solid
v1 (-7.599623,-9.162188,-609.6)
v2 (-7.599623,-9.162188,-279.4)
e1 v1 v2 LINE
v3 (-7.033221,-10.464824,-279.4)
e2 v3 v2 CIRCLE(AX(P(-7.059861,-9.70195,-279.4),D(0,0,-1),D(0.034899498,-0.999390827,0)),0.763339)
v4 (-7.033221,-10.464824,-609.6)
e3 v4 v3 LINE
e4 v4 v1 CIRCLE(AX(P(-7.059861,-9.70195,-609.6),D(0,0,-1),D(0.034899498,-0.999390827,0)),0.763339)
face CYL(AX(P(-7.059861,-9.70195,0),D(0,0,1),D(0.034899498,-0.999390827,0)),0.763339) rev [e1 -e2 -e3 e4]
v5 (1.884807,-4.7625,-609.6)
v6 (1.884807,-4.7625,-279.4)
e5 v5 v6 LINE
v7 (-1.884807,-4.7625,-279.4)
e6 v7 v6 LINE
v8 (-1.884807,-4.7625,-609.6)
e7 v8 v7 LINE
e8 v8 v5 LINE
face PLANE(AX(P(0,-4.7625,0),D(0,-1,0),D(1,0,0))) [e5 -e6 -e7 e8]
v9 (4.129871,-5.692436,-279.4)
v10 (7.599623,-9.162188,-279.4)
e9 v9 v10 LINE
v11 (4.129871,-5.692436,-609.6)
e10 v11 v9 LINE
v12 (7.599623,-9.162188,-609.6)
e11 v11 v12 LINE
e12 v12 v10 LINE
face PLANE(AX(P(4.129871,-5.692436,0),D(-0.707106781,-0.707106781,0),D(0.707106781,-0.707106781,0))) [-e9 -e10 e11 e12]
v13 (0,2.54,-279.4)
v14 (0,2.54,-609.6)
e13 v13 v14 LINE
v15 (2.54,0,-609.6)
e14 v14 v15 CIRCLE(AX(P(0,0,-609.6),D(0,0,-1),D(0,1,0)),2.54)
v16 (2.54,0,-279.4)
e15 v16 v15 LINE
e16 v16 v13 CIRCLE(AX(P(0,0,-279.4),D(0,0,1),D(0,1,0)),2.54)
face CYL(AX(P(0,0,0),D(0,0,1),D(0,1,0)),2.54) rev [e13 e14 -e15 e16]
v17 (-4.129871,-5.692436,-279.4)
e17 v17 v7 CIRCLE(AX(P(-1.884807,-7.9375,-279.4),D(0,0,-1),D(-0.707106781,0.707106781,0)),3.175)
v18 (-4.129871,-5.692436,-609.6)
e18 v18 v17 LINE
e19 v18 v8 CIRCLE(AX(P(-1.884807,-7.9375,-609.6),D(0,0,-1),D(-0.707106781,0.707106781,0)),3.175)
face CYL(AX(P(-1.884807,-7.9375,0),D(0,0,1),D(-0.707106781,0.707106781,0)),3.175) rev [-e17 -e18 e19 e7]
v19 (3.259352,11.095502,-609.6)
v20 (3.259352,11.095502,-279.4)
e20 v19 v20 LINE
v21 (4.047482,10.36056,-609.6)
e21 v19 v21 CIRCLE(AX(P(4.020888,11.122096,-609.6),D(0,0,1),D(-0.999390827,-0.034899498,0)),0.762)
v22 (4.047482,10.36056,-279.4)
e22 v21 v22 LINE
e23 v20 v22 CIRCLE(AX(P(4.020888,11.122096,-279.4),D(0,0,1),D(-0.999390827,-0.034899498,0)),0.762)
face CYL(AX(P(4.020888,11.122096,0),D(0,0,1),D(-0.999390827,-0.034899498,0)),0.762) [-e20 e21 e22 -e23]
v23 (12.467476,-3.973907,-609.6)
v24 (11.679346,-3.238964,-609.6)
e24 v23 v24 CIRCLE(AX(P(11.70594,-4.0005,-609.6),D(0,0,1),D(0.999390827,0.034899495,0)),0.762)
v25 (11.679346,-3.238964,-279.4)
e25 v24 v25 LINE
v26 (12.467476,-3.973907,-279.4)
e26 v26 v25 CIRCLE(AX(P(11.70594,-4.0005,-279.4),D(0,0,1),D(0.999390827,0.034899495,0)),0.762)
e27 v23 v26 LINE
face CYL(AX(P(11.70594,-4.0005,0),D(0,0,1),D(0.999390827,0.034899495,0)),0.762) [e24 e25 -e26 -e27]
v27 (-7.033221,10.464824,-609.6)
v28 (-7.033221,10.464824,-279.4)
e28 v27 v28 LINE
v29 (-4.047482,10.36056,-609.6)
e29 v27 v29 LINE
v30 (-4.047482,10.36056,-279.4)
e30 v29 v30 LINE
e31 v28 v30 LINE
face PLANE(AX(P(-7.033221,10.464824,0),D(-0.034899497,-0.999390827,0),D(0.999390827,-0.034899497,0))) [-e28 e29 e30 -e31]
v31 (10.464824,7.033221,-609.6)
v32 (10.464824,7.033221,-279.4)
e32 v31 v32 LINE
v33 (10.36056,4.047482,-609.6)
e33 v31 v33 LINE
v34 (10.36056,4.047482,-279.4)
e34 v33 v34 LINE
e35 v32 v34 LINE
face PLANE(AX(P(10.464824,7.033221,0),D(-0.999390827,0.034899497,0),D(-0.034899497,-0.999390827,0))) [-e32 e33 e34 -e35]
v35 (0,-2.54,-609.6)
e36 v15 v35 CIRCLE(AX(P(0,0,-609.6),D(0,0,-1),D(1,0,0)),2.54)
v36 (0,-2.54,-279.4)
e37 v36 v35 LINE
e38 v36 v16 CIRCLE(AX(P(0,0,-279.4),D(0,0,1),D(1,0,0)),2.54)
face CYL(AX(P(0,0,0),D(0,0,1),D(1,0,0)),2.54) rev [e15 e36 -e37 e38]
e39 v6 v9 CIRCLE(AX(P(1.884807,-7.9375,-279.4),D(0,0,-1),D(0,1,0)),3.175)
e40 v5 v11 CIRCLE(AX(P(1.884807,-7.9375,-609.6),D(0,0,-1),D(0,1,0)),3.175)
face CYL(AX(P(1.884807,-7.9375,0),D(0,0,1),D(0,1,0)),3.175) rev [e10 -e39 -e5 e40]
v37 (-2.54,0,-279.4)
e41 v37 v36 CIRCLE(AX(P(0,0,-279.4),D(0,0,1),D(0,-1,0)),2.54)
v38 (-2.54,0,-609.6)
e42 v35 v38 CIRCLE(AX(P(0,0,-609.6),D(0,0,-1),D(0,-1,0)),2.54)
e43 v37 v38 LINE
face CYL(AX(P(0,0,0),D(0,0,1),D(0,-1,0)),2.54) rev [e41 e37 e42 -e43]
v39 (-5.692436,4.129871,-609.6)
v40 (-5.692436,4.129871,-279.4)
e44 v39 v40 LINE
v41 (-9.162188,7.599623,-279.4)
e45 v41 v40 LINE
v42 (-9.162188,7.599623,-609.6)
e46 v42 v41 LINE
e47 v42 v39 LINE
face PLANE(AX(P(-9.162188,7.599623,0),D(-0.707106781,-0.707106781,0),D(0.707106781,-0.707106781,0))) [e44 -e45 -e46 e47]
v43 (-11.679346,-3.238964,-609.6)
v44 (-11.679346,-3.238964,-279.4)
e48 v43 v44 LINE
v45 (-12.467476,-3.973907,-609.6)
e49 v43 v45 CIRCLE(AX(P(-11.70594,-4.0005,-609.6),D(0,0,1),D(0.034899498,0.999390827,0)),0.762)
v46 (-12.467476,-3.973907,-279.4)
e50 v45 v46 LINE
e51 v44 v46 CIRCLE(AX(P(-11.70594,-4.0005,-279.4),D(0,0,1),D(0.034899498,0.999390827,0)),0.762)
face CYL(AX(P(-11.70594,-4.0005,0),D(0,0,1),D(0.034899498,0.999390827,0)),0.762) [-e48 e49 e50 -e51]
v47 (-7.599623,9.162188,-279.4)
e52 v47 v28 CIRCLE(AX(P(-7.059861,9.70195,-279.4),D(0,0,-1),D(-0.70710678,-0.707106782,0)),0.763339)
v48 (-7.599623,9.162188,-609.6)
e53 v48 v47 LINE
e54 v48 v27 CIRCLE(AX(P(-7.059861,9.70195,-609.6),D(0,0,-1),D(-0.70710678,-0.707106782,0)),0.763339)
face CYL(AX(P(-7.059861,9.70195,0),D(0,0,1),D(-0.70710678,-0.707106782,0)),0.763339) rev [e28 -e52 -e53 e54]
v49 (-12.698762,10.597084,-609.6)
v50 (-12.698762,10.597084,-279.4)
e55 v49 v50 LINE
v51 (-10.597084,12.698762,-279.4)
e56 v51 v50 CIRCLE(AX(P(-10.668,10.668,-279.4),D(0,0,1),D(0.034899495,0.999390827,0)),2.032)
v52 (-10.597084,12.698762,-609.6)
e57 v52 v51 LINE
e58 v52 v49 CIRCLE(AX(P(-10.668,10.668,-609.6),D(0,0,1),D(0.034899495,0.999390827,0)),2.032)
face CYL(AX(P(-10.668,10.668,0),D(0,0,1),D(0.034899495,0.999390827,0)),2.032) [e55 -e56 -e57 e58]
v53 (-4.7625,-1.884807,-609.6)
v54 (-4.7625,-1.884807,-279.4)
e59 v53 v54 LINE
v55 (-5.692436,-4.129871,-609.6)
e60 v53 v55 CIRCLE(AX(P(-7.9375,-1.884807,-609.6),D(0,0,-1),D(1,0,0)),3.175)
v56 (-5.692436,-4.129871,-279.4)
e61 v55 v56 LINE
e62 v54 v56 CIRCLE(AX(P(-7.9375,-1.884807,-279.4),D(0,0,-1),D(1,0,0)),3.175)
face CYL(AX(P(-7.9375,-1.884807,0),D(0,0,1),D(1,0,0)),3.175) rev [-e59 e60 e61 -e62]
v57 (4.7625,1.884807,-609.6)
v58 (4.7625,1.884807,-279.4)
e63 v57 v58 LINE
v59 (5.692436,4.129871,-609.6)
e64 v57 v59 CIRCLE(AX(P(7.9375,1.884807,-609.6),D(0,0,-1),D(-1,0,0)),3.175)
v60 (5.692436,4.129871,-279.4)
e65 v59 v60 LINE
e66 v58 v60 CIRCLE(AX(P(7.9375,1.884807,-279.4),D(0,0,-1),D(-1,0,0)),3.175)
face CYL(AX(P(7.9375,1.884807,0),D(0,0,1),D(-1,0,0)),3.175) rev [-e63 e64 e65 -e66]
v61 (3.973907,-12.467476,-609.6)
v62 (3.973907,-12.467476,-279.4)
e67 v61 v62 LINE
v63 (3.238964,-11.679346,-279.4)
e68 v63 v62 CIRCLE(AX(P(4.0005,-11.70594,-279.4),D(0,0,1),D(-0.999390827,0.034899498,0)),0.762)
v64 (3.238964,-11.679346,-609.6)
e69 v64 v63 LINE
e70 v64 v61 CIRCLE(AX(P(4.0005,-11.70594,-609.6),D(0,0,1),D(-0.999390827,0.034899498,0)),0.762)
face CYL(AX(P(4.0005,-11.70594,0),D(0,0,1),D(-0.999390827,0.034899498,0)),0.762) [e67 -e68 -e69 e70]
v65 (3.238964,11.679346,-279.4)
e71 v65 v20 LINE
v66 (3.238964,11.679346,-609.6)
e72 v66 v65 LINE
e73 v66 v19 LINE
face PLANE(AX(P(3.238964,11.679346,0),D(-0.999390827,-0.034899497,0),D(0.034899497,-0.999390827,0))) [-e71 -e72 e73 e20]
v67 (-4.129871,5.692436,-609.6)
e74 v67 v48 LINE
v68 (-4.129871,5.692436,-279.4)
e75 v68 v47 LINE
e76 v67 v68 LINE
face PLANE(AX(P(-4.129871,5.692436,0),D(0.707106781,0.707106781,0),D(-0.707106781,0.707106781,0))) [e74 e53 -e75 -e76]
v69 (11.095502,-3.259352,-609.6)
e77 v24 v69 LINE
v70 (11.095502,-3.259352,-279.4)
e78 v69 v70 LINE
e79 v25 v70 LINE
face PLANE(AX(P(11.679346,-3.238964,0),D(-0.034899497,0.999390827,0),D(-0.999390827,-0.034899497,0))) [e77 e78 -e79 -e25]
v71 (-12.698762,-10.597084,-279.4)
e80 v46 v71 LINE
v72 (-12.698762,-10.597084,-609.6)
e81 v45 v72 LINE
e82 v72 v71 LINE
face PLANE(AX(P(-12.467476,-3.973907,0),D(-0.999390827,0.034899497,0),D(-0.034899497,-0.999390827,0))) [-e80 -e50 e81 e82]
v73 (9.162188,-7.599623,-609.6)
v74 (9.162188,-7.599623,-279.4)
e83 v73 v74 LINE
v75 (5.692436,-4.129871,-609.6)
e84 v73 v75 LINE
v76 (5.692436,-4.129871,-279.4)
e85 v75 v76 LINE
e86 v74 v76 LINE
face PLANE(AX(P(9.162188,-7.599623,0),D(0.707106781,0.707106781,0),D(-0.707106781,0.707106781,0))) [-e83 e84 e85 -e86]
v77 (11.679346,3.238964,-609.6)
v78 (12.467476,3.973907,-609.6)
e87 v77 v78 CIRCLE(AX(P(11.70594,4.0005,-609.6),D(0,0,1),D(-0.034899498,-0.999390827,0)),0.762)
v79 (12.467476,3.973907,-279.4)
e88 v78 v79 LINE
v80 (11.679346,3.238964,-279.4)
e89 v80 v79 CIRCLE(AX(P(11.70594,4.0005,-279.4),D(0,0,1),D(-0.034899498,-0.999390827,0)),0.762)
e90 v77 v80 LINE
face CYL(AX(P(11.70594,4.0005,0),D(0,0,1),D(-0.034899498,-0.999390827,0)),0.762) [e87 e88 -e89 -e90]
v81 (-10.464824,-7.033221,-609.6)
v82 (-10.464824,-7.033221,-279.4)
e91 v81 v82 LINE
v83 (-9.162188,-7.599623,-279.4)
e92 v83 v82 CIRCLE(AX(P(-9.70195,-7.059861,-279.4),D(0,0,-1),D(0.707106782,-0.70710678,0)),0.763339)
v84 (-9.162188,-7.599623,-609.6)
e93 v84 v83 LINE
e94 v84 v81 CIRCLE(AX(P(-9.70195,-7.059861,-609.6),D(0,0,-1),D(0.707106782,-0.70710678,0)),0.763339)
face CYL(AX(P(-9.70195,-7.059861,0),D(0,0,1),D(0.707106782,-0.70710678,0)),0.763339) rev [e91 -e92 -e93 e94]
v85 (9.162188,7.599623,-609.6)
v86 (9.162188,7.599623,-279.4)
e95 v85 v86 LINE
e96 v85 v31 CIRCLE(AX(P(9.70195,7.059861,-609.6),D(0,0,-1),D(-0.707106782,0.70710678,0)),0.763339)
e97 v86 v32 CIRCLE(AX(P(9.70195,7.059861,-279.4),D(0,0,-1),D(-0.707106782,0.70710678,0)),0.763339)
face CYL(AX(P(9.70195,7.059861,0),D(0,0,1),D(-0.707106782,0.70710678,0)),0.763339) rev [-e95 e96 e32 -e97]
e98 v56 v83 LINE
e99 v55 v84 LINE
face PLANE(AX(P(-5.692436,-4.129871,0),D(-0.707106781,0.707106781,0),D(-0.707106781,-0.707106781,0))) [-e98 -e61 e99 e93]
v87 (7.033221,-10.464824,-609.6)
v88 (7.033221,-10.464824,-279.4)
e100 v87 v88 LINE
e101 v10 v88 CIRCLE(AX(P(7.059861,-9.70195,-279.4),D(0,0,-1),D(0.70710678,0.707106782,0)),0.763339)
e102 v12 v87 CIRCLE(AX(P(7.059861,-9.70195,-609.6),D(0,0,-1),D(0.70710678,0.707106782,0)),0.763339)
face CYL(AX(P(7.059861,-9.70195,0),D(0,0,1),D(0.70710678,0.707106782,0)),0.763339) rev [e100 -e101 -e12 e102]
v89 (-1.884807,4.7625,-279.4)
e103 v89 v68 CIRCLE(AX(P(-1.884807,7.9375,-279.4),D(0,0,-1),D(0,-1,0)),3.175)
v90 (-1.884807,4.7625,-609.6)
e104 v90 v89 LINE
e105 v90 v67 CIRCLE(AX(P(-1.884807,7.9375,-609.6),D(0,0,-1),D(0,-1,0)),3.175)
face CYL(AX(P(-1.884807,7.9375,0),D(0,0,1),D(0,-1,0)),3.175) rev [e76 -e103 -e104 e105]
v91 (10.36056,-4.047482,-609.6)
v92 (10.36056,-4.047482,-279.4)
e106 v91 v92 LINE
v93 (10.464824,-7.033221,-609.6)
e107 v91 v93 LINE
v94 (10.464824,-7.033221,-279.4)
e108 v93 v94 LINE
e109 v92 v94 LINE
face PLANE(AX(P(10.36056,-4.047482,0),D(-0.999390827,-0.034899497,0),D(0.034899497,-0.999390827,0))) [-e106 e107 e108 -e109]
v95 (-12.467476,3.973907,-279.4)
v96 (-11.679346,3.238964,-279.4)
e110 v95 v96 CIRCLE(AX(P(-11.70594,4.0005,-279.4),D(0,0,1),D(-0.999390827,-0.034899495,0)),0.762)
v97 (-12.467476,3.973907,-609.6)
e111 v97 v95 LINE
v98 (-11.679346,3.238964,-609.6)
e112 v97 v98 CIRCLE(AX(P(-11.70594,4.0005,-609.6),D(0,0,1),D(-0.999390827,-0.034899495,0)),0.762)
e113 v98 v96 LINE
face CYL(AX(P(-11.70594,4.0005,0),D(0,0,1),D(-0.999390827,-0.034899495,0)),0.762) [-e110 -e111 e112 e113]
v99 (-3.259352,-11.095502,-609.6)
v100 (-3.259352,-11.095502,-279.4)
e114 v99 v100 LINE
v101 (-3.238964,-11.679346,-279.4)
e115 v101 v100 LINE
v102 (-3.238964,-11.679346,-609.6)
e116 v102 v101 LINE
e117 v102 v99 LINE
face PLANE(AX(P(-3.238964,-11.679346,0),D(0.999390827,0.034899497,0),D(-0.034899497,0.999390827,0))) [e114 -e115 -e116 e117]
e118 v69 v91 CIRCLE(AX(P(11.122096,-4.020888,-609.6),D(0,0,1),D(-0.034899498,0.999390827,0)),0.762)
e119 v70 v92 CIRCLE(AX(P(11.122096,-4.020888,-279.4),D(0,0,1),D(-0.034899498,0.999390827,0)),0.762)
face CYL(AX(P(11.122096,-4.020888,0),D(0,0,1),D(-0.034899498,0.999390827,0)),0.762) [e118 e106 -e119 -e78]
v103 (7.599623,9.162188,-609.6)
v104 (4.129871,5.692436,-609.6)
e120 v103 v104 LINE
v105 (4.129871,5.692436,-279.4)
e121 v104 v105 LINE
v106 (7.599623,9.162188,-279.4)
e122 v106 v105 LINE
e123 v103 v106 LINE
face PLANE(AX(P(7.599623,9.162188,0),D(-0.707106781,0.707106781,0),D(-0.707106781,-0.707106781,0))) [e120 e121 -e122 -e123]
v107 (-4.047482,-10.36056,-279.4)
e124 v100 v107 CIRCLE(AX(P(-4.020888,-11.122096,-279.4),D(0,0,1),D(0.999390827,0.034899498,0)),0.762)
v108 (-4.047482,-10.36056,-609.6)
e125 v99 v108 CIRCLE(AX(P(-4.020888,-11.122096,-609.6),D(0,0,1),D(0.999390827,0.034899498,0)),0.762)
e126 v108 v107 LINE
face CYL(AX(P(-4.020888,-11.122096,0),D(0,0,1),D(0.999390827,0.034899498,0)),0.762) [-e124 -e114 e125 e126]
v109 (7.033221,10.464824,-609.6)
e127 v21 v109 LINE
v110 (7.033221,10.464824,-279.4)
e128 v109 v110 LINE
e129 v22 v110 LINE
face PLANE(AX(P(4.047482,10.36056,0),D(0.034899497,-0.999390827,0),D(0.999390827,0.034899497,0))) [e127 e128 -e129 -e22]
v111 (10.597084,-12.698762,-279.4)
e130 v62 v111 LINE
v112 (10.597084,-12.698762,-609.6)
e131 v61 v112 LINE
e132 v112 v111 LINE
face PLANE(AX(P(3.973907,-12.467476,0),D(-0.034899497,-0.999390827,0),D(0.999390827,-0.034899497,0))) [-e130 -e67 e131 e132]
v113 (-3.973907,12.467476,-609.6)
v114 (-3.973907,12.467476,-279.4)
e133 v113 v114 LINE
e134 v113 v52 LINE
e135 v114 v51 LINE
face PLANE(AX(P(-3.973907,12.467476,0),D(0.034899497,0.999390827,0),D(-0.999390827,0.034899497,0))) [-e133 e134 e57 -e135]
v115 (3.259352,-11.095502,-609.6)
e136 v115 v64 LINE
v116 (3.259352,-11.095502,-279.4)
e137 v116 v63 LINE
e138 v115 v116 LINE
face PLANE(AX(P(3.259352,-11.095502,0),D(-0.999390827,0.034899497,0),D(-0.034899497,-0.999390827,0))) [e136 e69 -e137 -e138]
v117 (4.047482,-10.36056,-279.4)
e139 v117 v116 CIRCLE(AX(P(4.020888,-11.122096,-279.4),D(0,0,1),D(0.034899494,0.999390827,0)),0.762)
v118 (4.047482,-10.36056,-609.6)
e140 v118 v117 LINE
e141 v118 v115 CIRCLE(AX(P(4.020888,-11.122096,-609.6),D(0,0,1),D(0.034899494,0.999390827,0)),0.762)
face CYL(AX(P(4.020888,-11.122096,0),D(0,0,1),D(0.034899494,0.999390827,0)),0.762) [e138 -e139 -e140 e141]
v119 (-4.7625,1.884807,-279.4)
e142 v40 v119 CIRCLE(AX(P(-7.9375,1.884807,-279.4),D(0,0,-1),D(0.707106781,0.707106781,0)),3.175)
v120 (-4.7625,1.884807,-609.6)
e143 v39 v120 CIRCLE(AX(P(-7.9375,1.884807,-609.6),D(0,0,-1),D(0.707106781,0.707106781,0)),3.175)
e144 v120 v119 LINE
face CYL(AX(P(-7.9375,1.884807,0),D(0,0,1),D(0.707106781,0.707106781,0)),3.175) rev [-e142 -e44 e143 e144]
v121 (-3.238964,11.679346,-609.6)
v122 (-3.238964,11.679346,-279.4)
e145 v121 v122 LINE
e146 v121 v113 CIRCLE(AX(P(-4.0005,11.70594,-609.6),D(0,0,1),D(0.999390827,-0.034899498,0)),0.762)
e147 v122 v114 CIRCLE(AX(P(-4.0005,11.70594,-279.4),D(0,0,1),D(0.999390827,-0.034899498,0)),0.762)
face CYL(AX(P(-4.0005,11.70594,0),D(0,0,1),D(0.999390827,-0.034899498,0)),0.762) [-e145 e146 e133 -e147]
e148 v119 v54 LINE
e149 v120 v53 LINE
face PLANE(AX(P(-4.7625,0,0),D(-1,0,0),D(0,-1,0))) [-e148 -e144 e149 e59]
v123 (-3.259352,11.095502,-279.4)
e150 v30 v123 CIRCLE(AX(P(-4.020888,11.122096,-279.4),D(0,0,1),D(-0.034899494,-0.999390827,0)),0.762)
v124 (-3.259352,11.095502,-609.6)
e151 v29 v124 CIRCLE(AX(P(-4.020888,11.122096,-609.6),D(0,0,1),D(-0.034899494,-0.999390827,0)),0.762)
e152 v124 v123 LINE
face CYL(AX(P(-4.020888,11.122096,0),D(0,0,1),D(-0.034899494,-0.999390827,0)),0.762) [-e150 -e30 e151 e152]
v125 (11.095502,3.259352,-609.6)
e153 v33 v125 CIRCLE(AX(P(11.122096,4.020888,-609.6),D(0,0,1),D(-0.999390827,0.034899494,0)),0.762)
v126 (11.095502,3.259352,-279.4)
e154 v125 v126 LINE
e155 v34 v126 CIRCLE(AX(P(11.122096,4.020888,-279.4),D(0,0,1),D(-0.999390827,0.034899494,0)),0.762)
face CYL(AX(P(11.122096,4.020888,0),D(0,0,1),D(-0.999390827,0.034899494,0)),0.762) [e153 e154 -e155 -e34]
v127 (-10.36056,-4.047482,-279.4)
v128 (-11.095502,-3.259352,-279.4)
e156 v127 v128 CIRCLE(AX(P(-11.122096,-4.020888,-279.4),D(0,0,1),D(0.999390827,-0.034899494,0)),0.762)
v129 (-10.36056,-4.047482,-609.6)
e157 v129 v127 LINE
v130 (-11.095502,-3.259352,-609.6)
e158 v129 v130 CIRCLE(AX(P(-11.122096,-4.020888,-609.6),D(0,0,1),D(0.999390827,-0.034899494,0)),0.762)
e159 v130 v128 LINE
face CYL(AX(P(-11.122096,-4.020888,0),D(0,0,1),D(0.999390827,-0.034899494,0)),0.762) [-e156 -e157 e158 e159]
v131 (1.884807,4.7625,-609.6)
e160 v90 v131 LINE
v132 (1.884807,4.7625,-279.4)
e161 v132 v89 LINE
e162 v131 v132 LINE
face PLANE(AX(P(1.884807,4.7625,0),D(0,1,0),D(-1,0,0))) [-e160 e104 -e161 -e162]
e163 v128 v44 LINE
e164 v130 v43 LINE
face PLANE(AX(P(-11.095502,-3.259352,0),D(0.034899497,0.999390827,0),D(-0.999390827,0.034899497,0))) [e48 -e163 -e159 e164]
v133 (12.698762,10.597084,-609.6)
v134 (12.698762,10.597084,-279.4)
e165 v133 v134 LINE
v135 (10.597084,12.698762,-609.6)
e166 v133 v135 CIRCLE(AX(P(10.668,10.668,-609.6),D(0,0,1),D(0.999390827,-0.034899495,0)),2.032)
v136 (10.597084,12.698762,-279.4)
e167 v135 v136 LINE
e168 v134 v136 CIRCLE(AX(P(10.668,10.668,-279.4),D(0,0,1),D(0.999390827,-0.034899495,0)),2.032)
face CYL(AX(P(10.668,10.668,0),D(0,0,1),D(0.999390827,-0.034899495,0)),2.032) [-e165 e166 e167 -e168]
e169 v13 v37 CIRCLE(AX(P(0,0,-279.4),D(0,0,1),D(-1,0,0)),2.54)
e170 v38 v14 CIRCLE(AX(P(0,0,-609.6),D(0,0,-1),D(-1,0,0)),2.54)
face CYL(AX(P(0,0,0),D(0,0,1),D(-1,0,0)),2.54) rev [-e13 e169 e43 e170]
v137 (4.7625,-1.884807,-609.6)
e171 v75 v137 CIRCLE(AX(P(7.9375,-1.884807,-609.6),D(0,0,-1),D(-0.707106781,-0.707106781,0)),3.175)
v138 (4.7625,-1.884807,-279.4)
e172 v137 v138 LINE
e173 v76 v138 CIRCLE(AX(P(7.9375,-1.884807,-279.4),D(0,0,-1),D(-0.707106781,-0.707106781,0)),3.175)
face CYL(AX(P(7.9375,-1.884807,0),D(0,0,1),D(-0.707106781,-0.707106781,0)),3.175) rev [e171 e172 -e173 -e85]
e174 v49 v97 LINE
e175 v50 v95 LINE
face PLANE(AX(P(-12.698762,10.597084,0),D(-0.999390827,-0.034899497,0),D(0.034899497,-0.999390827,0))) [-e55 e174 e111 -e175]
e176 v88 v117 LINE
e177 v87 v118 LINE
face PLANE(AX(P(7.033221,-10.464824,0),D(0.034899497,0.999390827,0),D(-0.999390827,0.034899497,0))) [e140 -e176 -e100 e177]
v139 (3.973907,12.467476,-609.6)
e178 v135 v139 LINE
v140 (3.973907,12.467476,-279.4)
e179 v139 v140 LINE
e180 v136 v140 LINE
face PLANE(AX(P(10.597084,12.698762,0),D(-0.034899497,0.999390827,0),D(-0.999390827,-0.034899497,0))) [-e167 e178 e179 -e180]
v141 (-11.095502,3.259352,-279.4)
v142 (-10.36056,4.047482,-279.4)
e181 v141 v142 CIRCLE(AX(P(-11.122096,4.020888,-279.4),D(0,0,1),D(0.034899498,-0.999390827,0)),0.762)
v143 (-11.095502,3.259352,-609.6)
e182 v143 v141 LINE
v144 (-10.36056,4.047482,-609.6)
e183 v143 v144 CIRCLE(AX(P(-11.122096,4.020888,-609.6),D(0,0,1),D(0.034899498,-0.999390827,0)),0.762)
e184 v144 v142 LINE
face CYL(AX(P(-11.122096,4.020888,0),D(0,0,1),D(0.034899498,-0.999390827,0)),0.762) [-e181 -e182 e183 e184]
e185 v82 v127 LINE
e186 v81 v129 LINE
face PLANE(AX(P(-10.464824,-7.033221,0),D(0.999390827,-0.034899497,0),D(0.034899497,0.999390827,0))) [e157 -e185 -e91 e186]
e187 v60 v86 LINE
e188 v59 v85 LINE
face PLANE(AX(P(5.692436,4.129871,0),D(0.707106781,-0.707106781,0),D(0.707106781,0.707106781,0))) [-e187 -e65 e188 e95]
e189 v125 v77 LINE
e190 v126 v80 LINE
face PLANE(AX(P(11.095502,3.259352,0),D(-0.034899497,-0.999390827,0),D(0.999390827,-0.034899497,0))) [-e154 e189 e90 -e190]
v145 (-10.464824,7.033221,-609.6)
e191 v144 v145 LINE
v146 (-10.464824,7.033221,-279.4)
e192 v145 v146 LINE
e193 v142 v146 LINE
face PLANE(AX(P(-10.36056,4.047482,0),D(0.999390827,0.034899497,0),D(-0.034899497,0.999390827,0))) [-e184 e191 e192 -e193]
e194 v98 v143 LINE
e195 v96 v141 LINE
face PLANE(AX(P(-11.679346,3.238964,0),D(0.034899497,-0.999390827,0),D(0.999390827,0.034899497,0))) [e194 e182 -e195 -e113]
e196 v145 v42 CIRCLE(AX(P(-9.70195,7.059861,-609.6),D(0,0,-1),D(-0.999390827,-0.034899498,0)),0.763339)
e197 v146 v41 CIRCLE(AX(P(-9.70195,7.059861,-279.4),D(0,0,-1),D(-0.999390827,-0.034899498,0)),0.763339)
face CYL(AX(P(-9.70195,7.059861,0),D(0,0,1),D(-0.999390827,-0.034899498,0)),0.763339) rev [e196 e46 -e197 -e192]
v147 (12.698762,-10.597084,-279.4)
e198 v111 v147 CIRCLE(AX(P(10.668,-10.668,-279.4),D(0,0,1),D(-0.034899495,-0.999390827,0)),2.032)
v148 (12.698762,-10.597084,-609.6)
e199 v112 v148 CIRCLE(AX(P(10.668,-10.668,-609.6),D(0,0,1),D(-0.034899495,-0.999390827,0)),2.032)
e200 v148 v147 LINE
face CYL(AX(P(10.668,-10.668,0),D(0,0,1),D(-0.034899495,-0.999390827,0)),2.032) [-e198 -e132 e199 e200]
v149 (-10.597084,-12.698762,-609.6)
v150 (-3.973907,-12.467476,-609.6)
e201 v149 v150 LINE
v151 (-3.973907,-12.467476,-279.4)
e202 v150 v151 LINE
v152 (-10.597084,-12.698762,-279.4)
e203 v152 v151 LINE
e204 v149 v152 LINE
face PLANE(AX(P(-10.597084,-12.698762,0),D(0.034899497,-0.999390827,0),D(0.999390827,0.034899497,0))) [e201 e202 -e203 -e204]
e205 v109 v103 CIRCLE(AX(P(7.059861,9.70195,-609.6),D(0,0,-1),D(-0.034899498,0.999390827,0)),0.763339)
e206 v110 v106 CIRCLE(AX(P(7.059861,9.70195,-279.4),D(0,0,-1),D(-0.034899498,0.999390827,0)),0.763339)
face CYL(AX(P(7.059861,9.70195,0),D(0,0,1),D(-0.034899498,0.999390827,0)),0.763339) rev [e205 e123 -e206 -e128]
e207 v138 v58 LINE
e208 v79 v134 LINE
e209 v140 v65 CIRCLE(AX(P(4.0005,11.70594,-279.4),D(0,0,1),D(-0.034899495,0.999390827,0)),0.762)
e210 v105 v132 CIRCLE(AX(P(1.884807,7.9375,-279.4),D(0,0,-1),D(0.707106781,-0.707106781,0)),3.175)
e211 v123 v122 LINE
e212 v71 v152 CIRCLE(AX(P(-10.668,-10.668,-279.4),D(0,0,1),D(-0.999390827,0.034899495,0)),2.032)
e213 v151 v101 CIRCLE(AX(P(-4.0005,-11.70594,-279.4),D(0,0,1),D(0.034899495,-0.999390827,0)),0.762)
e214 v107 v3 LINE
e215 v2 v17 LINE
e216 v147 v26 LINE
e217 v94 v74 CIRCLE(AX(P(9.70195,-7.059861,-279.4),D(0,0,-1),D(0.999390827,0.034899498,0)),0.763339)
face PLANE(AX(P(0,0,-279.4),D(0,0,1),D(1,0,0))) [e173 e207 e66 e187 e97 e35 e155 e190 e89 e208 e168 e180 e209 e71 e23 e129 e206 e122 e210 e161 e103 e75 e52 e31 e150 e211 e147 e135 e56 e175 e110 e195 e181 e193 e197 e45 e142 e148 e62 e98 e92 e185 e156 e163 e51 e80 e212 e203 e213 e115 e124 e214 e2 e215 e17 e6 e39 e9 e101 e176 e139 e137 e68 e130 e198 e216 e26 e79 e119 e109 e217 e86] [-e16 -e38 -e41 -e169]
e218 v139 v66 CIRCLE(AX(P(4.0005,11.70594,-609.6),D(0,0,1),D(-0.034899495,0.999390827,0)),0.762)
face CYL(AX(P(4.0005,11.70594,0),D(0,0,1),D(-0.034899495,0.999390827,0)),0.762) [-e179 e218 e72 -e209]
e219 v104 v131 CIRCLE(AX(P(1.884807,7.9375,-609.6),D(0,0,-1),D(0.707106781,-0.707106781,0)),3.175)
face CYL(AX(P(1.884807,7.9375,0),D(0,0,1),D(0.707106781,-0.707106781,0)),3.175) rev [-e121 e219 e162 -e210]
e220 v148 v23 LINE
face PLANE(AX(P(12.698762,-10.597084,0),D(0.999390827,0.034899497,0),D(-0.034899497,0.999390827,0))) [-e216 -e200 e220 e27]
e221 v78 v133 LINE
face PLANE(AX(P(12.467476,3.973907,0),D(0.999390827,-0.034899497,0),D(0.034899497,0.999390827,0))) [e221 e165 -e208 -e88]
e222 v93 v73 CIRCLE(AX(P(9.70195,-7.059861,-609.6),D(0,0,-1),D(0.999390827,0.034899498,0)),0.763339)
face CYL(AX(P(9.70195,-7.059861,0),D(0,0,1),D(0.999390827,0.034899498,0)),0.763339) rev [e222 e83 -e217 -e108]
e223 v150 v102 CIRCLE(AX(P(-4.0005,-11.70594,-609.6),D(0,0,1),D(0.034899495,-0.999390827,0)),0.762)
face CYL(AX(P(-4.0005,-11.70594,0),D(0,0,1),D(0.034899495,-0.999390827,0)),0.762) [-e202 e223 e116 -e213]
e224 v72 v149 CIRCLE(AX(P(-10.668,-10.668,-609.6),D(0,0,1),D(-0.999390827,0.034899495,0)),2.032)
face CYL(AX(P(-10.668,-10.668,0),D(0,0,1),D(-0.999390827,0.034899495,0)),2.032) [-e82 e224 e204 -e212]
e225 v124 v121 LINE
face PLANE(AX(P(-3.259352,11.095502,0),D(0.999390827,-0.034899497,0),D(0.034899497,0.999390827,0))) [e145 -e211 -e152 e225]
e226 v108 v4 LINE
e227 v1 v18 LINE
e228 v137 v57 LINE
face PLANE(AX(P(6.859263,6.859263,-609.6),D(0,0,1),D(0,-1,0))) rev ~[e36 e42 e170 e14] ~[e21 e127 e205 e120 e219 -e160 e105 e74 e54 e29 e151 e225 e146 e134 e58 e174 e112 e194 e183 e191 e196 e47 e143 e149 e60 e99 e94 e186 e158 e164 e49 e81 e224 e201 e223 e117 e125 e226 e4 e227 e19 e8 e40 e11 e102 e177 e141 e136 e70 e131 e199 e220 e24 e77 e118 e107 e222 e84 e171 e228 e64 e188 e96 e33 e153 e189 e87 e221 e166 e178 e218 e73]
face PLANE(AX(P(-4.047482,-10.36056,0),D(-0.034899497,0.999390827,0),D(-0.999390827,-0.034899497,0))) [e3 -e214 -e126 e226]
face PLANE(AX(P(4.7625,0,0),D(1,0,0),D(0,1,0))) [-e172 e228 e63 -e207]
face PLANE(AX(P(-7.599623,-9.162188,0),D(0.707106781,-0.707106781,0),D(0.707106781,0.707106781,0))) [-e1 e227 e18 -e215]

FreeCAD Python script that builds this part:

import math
import FreeCAD as App
import Part
import Sketcher
from FreeCAD import Vector
Q = App.Units.Quantity

doc = App.newDocument("Part")
params = doc.addObject("Spreadsheet::Sheet", "Params")
for row, (alias, value) in enumerate([
    ("sketch1_radius", "0.1 in"),
    ("sketch1_radius2", "0.03 in"),
    ("sketch1_radius3", "0.08 in"),
    ("sketch1_radius4", "0.125 in"),
    ("sketch1_length", "0.023 in"),
    ("pad1_length", "48 in"),
    ("sketch2_radius", "0.03 in"),
    ("sketch2_radius2", "0.08 in"),
    ("sketch2_radius3", "0.125 in"),
    ("sketch2_length", "0.023 in"),
    ("pocket1_length", "35 in"),
], start=1):
    params.set(f"A{row}", alias)
    params.set(f"B{row}", "=" + value)
    params.setAlias(f"B{row}", alias)

body = doc.addObject("PartDesign::Body", "Body")

# Sketch on XY plane
sketch1 = body.newObject("Sketcher::SketchObject", "Sketch")
sketch1.AttachmentSupport = (doc.getObject("XY_Plane"), [""])
sketch1.MapMode = "FlatFace"
sketch1.addGeometry([
    Part.LineSegment(Vector(0, 4.8, 0), Vector(-1.9, 4.8, 0)),  # 0
    Part.ArcOfCircle(Part.Circle(Vector(-1.9, 7.9, 0), Vector(0, 0, 1), 3.2), math.radians(-135), math.radians(-90)),  # 1
    Part.LineSegment(Vector(-4.1, 5.7, 0), Vector(-7.6, 9.2, 0)),  # 2
    Part.ArcOfCircle(Part.Circle(Vector(-7.1, 9.7, 0), Vector(0, 0, 1), 0.8), math.radians(88), math.radians(225)),  # 3
    Part.LineSegment(Vector(-7, 10.5, 0), Vector(-4, 10.4, 0)),  # 4
    Part.ArcOfCircle(Part.Circle(Vector(-4, 11.1, 0), Vector(0, 0, 1), 0.8), math.radians(-92), math.radians(-2)),  # 5
    Part.LineSegment(Vector(-3.3, 11.1, 0), Vector(-3.2, 11.7, 0)),  # 6
    Part.ArcOfCircle(Part.Circle(Vector(-4, 11.7, 0), Vector(0, 0, 1), 0.8), math.radians(-2), math.radians(88)),  # 7
    Part.LineSegment(Vector(-4, 12.5, 0), Vector(-10.6, 12.7, 0)),  # 8
    Part.ArcOfCircle(Part.Circle(Vector(-10.7, 10.7, 0), Vector(0, 0, 1), 2), math.radians(88), math.radians(182)),  # 9
    Part.LineSegment(Vector(-12.7, 10.6, 0), Vector(-12.5, 4, 0)),  # 10
    Part.ArcOfCircle(Part.Circle(Vector(-11.7, 4, 0), Vector(0, 0, 1), 0.8), math.radians(-178), math.radians(-88)),  # 11
    Part.LineSegment(Vector(-11.7, 3.2, 0), Vector(-11.1, 3.3, 0)),  # 12
    Part.ArcOfCircle(Part.Circle(Vector(-11.1, 4, 0), Vector(0, 0, 1), 0.8), math.radians(-88), math.radians(2)),  # 13
    Part.LineSegment(Vector(-10.4, 4, 0), Vector(-10.5, 7, 0)),  # 14
    Part.ArcOfCircle(Part.Circle(Vector(-9.7, 7.1, 0), Vector(0, 0, 1), 0.8), math.radians(45), math.radians(182)),  # 15
    Part.LineSegment(Vector(-9.2, 7.6, 0), Vector(-5.7, 4.1, 0)),  # 16
    Part.ArcOfCircle(Part.Circle(Vector(-7.9, 1.9, 0), Vector(0, 0, 1), 3.2), math.radians(0), math.radians(45)),  # 17
    Part.LineSegment(Vector(-4.8, 1.9, 0), Vector(-4.8, 0, 0)),  # 18
    Part.LineSegment(Vector(-4.8, 0, 0), Vector(-2.5, 0, 0)),  # 19
    Part.ArcOfCircle(Part.Circle(Vector(0, 0, 0), Vector(0, 0, 1), 2.5), math.radians(90), math.radians(180)),  # 20
    Part.LineSegment(Vector(0, 2.5, 0), Vector(0, 4.8, 0)),  # 21
], False)
sketch1.addConstraint([
    Sketcher.Constraint("Tangent", 0, 2, 1, 2),
    Sketcher.Constraint("Tangent", 1, 1, 2, 1),
    Sketcher.Constraint("Tangent", 2, 2, 3, 2),
    Sketcher.Constraint("Tangent", 3, 1, 4, 1),
    Sketcher.Constraint("Tangent", 4, 2, 5, 1),
    Sketcher.Constraint("Tangent", 5, 2, 6, 1),
    Sketcher.Constraint("Tangent", 6, 2, 7, 1),
    Sketcher.Constraint("Tangent", 7, 2, 8, 1),
    Sketcher.Constraint("Tangent", 8, 2, 9, 1),
    Sketcher.Constraint("Tangent", 9, 2, 10, 1),
    Sketcher.Constraint("Tangent", 10, 2, 11, 1),
    Sketcher.Constraint("Tangent", 11, 2, 12, 1),
    Sketcher.Constraint("Tangent", 12, 2, 13, 1),
    Sketcher.Constraint("Tangent", 13, 2, 14, 1),
    Sketcher.Constraint("Tangent", 14, 2, 15, 2),
    Sketcher.Constraint("Tangent", 15, 1, 16, 1),
    Sketcher.Constraint("Tangent", 16, 2, 17, 2),
    Sketcher.Constraint("Tangent", 17, 1, 18, 1),
    Sketcher.Constraint("Coincident", 18, 2, 19, 1),
    Sketcher.Constraint("Coincident", 19, 2, 20, 2),
    Sketcher.Constraint("Coincident", 20, 1, 21, 1),
    Sketcher.Constraint("Coincident", 21, 2, 0, 1),
    Sketcher.Constraint("Horizontal", 0),
    Sketcher.Constraint("Vertical", 18),
    Sketcher.Constraint("Horizontal", 19),
    Sketcher.Constraint("Vertical", 21),
    Sketcher.Constraint("Coincident", 20, 3, -1, 1),
    Sketcher.Constraint("Equal", 5, 7),
    Sketcher.Constraint("Equal", 7, 11),
    Sketcher.Constraint("Equal", 11, 13),
    Sketcher.Constraint("Equal", 3, 15),
    Sketcher.Constraint("Equal", 1, 17),
    Sketcher.Constraint("PointOnObject", 18, 2, -1),
    Sketcher.Constraint("PointOnObject", 20, 1, -2),
    Sketcher.Constraint("Perpendicular", 4, 6),
    Sketcher.Constraint("Perpendicular", 6, 8),
    Sketcher.Constraint("Perpendicular", 10, 12),
    Sketcher.Constraint("Perpendicular", 12, 14),
    Sketcher.Constraint("Parallel", 2, 16),
    Sketcher.Constraint("Equal", 0, 18),
    Sketcher.Constraint("Equal", 19, 21),
    Sketcher.Constraint("Equal", 8, 10),
    Sketcher.Constraint("Equal", 6, 12),
    Sketcher.Constraint("Equal", 4, 14),
    Sketcher.Constraint("Equal", 2, 16),
    Sketcher.Constraint("Radius", 20, Q("0.1 in")),
    Sketcher.Constraint("Radius", 5, Q("0.03 in")),
    Sketcher.Constraint("Radius", 9, Q("0.08 in")),
    Sketcher.Constraint("Angle", 2, Q("135 deg")),
    Sketcher.Constraint("Angle", 4, Q("-2 deg")),
    Sketcher.Constraint("Radius", 1, Q("0.125 in")),
    Sketcher.Constraint("DistanceX", 9, 3, -1, 1, Q("0.42 in")),
    Sketcher.Constraint("Distance", 6, Q("0.023 in")),
    Sketcher.Constraint("DistanceX", 19, 1, 19, 2, Q("0.0875 in")),
    Sketcher.Constraint("Radius", 3, 0.763339),
    Sketcher.Constraint("DistanceY", 11, 3, 1, 3, Q("0.155 in")),
    Sketcher.Constraint("DistanceY", 15, 3, 8, 2, 5.638901),
])
sketch1.setExpression("Constraints[45]", "Params.sketch1_radius")
sketch1.setExpression("Constraints[46]", "Params.sketch1_radius2")
sketch1.setExpression("Constraints[47]", "Params.sketch1_radius3")
sketch1.setExpression("Constraints[50]", "Params.sketch1_radius4")
sketch1.setExpression("Constraints[52]", "Params.sketch1_length")
pad1 = body.newObject("PartDesign::Pad", "Pad")
pad1.Profile = sketch1
pad1.setExpression("Length", "Params.pad1_length")
pad1.Midplane = True
doc.recompute()

polarpattern = body.newObject("PartDesign::PolarPattern", "PolarPattern")
polarpattern.Originals = [pad1]
polarpattern.Axis = (doc.getObject("Z_Axis"), [""])
polarpattern.Angle = 360
polarpattern.Occurrences = 4
body.Tip = polarpattern

# Sketch on XY plane
sketch2 = body.newObject("Sketcher::SketchObject", "Sketch001")
sketch2.AttachmentSupport = (doc.getObject("XY_Plane"), [""])
sketch2.MapMode = "FlatFace"
sketch2.AttachmentOffset = App.Placement(Vector(0, 0, 24 * 25.4), App.Rotation())
sketch2.addGeometry([
    Part.LineSegment(Vector(1.9, 4.8, 0), Vector(-1.9, 4.8, 0)),  # 0
    Part.ArcOfCircle(Part.Circle(Vector(-1.9, 7.9, 0), Vector(0, 0, 1), 3.2), math.radians(-135), math.radians(-90)),  # 1
    Part.LineSegment(Vector(-4.1, 5.7, 0), Vector(-7.6, 9.2, 0)),  # 2
    Part.ArcOfCircle(Part.Circle(Vector(-7.1, 9.7, 0), Vector(0, 0, 1), 0.8), math.radians(88), math.radians(225)),  # 3
    Part.LineSegment(Vector(-7, 10.5, 0), Vector(-4, 10.4, 0)),  # 4
    Part.ArcOfCircle(Part.Circle(Vector(-4, 11.1, 0), Vector(0, 0, 1), 0.8), math.radians(-92), math.radians(-2)),  # 5
    Part.LineSegment(Vector(-3.3, 11.1, 0), Vector(-3.2, 11.7, 0)),  # 6
    Part.ArcOfCircle(Part.Circle(Vector(-4, 11.7, 0), Vector(0, 0, 1), 0.8), math.radians(-2), math.radians(88)),  # 7
    Part.LineSegment(Vector(-4, 12.5, 0), Vector(-10.6, 12.7, 0)),  # 8
    Part.ArcOfCircle(Part.Circle(Vector(-10.7, 10.7, 0), Vector(0, 0, 1), 2), math.radians(88), math.radians(182)),  # 9
    Part.LineSegment(Vector(-12.7, 10.6, 0), Vector(-12.5, 4, 0)),  # 10
    Part.ArcOfCircle(Part.Circle(Vector(-11.7, 4, 0), Vector(0, 0, 1), 0.8), math.radians(-178), math.radians(-88)),  # 11
    Part.LineSegment(Vector(-11.7, 3.2, 0), Vector(-11.1, 3.3, 0)),  # 12
    Part.ArcOfCircle(Part.Circle(Vector(-11.1, 4, 0), Vector(0, 0, 1), 0.8), math.radians(-88), math.radians(2)),  # 13
    Part.LineSegment(Vector(-10.4, 4, 0), Vector(-10.5, 7, 0)),  # 14
    Part.ArcOfCircle(Part.Circle(Vector(-9.7, 7.1, 0), Vector(0, 0, 1), 0.8), math.radians(45), math.radians(182)),  # 15
    Part.LineSegment(Vector(-9.2, 7.6, 0), Vector(-5.7, 4.1, 0)),  # 16
    Part.ArcOfCircle(Part.Circle(Vector(-7.9, 1.9, 0), Vector(0, 0, 1), 3.2), math.radians(0), math.radians(45)),  # 17
    Part.LineSegment(Vector(-4.8, 1.9, 0), Vector(-4.8, -1.9, 0)),  # 18
    Part.ArcOfCircle(Part.Circle(Vector(-7.9, -1.9, 0), Vector(0, 0, 1), 3.2), math.radians(-45), math.radians(0)),  # 19
    Part.LineSegment(Vector(-5.7, -4.1, 0), Vector(-9.2, -7.6, 0)),  # 20
    Part.ArcOfCircle(Part.Circle(Vector(-9.7, -7.1, 0), Vector(0, 0, 1), 0.8), math.radians(178), math.radians(315)),  # 21
    Part.LineSegment(Vector(-10.5, -7, 0), Vector(-10.4, -4, 0)),  # 22
    Part.ArcOfCircle(Part.Circle(Vector(-11.1, -4, 0), Vector(0, 0, 1), 0.8), math.radians(-2), math.radians(88)),  # 23
    Part.LineSegment(Vector(-11.1, -3.3, 0), Vector(-11.7, -3.2, 0)),  # 24
    Part.ArcOfCircle(Part.Circle(Vector(-11.7, -4, 0), Vector(0, 0, 1), 0.8), math.radians(88), math.radians(178)),  # 25
    Part.LineSegment(Vector(-12.5, -4, 0), Vector(-12.7, -10.6, 0)),  # 26
    Part.ArcOfCircle(Part.Circle(Vector(-10.7, -10.7, 0), Vector(0, 0, 1), 2), math.radians(178), math.radians(272)),  # 27
    Part.LineSegment(Vector(-10.6, -12.7, 0), Vector(-4, -12.5, 0)),  # 28
    Part.ArcOfCircle(Part.Circle(Vector(-4, -11.7, 0), Vector(0, 0, 1), 0.8), math.radians(-88), math.radians(2)),  # 29
    Part.LineSegment(Vector(-3.2, -11.7, 0), Vector(-3.3, -11.1, 0)),  # 30
    Part.ArcOfCircle(Part.Circle(Vector(-4, -11.1, 0), Vector(0, 0, 1), 0.8), math.radians(2), math.radians(92)),  # 31
    Part.LineSegment(Vector(-4, -10.4, 0), Vector(-7, -10.5, 0)),  # 32
    Part.ArcOfCircle(Part.Circle(Vector(-7.1, -9.7, 0), Vector(0, 0, 1), 0.8), math.radians(135), math.radians(272)),  # 33
    Part.LineSegment(Vector(-7.6, -9.2, 0), Vector(-4.1, -5.7, 0)),  # 34
    Part.ArcOfCircle(Part.Circle(Vector(-1.9, -7.9, 0), Vector(0, 0, 1), 3.2), math.radians(90), math.radians(135)),  # 35
    Part.LineSegment(Vector(-1.9, -4.8, 0), Vector(1.9, -4.8, 0)),  # 36
    Part.ArcOfCircle(Part.Circle(Vector(1.9, -7.9, 0), Vector(0, 0, 1), 3.2), math.radians(45), math.radians(90)),  # 37
    Part.LineSegment(Vector(4.1, -5.7, 0), Vector(7.6, -9.2, 0)),  # 38
    Part.ArcOfCircle(Part.Circle(Vector(7.1, -9.7, 0), Vector(0, 0, 1), 0.8), math.radians(-92), math.radians(45)),  # 39
    Part.LineSegment(Vector(7, -10.5, 0), Vector(4, -10.4, 0)),  # 40
    Part.ArcOfCircle(Part.Circle(Vector(4, -11.1, 0), Vector(0, 0, 1), 0.8), math.radians(88), math.radians(178)),  # 41
    Part.LineSegment(Vector(3.3, -11.1, 0), Vector(3.2, -11.7, 0)),  # 42
    Part.ArcOfCircle(Part.Circle(Vector(4, -11.7, 0), Vector(0, 0, 1), 0.8), math.radians(178), math.radians(268)),  # 43
    Part.LineSegment(Vector(4, -12.5, 0), Vector(10.6, -12.7, 0)),  # 44
    Part.ArcOfCircle(Part.Circle(Vector(10.7, -10.7, 0), Vector(0, 0, 1), 2), math.radians(-92), math.radians(2)),  # 45
    Part.LineSegment(Vector(12.7, -10.6, 0), Vector(12.5, -4, 0)),  # 46
    Part.ArcOfCircle(Part.Circle(Vector(11.7, -4, 0), Vector(0, 0, 1), 0.8), math.radians(2), math.radians(92)),  # 47
    Part.LineSegment(Vector(11.7, -3.2, 0), Vector(11.1, -3.3, 0)),  # 48
    Part.ArcOfCircle(Part.Circle(Vector(11.1, -4, 0), Vector(0, 0, 1), 0.8), math.radians(92), math.radians(182)),  # 49
    Part.LineSegment(Vector(10.4, -4, 0), Vector(10.5, -7, 0)),  # 50
    Part.ArcOfCircle(Part.Circle(Vector(9.7, -7.1, 0), Vector(0, 0, 1), 0.8), math.radians(-135), math.radians(2)),  # 51
    Part.LineSegment(Vector(9.2, -7.6, 0), Vector(5.7, -4.1, 0)),  # 52
    Part.ArcOfCircle(Part.Circle(Vector(7.9, -1.9, 0), Vector(0, 0, 1), 3.2), math.radians(180), math.radians(225)),  # 53
    Part.LineSegment(Vector(4.8, -1.9, 0), Vector(4.8, 1.9, 0)),  # 54
    Part.ArcOfCircle(Part.Circle(Vector(7.9, 1.9, 0), Vector(0, 0, 1), 3.2), math.radians(135), math.radians(180)),  # 55
    Part.LineSegment(Vector(5.7, 4.1, 0), Vector(9.2, 7.6, 0)),  # 56
    Part.ArcOfCircle(Part.Circle(Vector(9.7, 7.1, 0), Vector(0, 0, 1), 0.8), math.radians(-2), math.radians(135)),  # 57
    Part.LineSegment(Vector(10.5, 7, 0), Vector(10.4, 4, 0)),  # 58
    Part.ArcOfCircle(Part.Circle(Vector(11.1, 4, 0), Vector(0, 0, 1), 0.8), math.radians(178), math.radians(268)),  # 59
    Part.LineSegment(Vector(11.1, 3.3, 0), Vector(11.7, 3.2, 0)),  # 60
    Part.ArcOfCircle(Part.Circle(Vector(11.7, 4, 0), Vector(0, 0, 1), 0.8), math.radians(-92), math.radians(-2)),  # 61
    Part.LineSegment(Vector(12.5, 4, 0), Vector(12.7, 10.6, 0)),  # 62
    Part.ArcOfCircle(Part.Circle(Vector(10.7, 10.7, 0), Vector(0, 0, 1), 2), math.radians(-2), math.radians(92)),  # 63
    Part.LineSegment(Vector(10.6, 12.7, 0), Vector(4, 12.5, 0)),  # 64
    Part.ArcOfCircle(Part.Circle(Vector(4, 11.7, 0), Vector(0, 0, 1), 0.8), math.radians(92), math.radians(182)),  # 65
    Part.LineSegment(Vector(3.2, 11.7, 0), Vector(3.3, 11.1, 0)),  # 66
    Part.ArcOfCircle(Part.Circle(Vector(4, 11.1, 0), Vector(0, 0, 1), 0.8), math.radians(-178), math.radians(-88)),  # 67
    Part.LineSegment(Vector(4, 10.4, 0), Vector(7, 10.5, 0)),  # 68
    Part.ArcOfCircle(Part.Circle(Vector(7.1, 9.7, 0), Vector(0, 0, 1), 0.8), math.radians(-45), math.radians(92)),  # 69
    Part.LineSegment(Vector(7.6, 9.2, 0), Vector(4.1, 5.7, 0)),  # 70
    Part.ArcOfCircle(Part.Circle(Vector(1.9, 7.9, 0), Vector(0, 0, 1), 3.2), math.radians(-90), math.radians(-45)),  # 71
], False)
sketch2.addConstraint([
    Sketcher.Constraint("Tangent", 0, 2, 1, 2),
    Sketcher.Constraint("Tangent", 1, 1, 2, 1),
    Sketcher.Constraint("Tangent", 2, 2, 3, 2),
    Sketcher.Constraint("Tangent", 3, 1, 4, 1),
    Sketcher.Constraint("Tangent", 4, 2, 5, 1),
    Sketcher.Constraint("Tangent", 5, 2, 6, 1),
    Sketcher.Constraint("Tangent", 6, 2, 7, 1),
    Sketcher.Constraint("Tangent", 7, 2, 8, 1),
    Sketcher.Constraint("Tangent", 8, 2, 9, 1),
    Sketcher.Constraint("Tangent", 9, 2, 10, 1),
    Sketcher.Constraint("Tangent", 10, 2, 11, 1),
    Sketcher.Constraint("Tangent", 11, 2, 12, 1),
    Sketcher.Constraint("Tangent", 12, 2, 13, 1),
    Sketcher.Constraint("Tangent", 13, 2, 14, 1),
    Sketcher.Constraint("Tangent", 14, 2, 15, 2),
    Sketcher.Constraint("Tangent", 15, 1, 16, 1),
    Sketcher.Constraint("Tangent", 16, 2, 17, 2),
    Sketcher.Constraint("Tangent", 17, 1, 18, 1),
    Sketcher.Constraint("Tangent", 18, 2, 19, 2),
    Sketcher.Constraint("Tangent", 19, 1, 20, 1),
    Sketcher.Constraint("Tangent", 20, 2, 21, 2),
    Sketcher.Constraint("Tangent", 21, 1, 22, 1),
    Sketcher.Constraint("Tangent", 22, 2, 23, 1),
    Sketcher.Constraint("Tangent", 23, 2, 24, 1),
    Sketcher.Constraint("Tangent", 24, 2, 25, 1),
    Sketcher.Constraint("Tangent", 25, 2, 26, 1),
    Sketcher.Constraint("Tangent", 26, 2, 27, 1),
    Sketcher.Constraint("Tangent", 27, 2, 28, 1),
    Sketcher.Constraint("Tangent", 28, 2, 29, 1),
    Sketcher.Constraint("Tangent", 29, 2, 30, 1),
    Sketcher.Constraint("Tangent", 30, 2, 31, 1),
    Sketcher.Constraint("Tangent", 31, 2, 32, 1),
    Sketcher.Constraint("Tangent", 32, 2, 33, 2),
    Sketcher.Constraint("Tangent", 33, 1, 34, 1),
    Sketcher.Constraint("Tangent", 34, 2, 35, 2),
    Sketcher.Constraint("Tangent", 35, 1, 36, 1),
    Sketcher.Constraint("Tangent", 36, 2, 37, 2),
    Sketcher.Constraint("Tangent", 37, 1, 38, 1),
    Sketcher.Constraint("Tangent", 38, 2, 39, 2),
    Sketcher.Constraint("Tangent", 39, 1, 40, 1),
    Sketcher.Constraint("Tangent", 40, 2, 41, 1),
    Sketcher.Constraint("Tangent", 41, 2, 42, 1),
    Sketcher.Constraint("Tangent", 42, 2, 43, 1),
    Sketcher.Constraint("Tangent", 43, 2, 44, 1),
    Sketcher.Constraint("Tangent", 44, 2, 45, 1),
    Sketcher.Constraint("Tangent", 45, 2, 46, 1),
    Sketcher.Constraint("Tangent", 46, 2, 47, 1),
    Sketcher.Constraint("Tangent", 47, 2, 48, 1),
    Sketcher.Constraint("Tangent", 48, 2, 49, 1),
    Sketcher.Constraint("Tangent", 49, 2, 50, 1),
    Sketcher.Constraint("Tangent", 50, 2, 51, 2),
    Sketcher.Constraint("Tangent", 51, 1, 52, 1),
    Sketcher.Constraint("Tangent", 52, 2, 53, 2),
    Sketcher.Constraint("Tangent", 53, 1, 54, 1),
    Sketcher.Constraint("Tangent", 54, 2, 55, 2),
    Sketcher.Constraint("Tangent", 55, 1, 56, 1),
    Sketcher.Constraint("Tangent", 56, 2, 57, 2),
    Sketcher.Constraint("Tangent", 57, 1, 58, 1),
    Sketcher.Constraint("Tangent", 58, 2, 59, 1),
    Sketcher.Constraint("Tangent", 59, 2, 60, 1),
    Sketcher.Constraint("Tangent", 60, 2, 61, 1),
    Sketcher.Constraint("Tangent", 61, 2, 62, 1),
    Sketcher.Constraint("Tangent", 62, 2, 63, 1),
    Sketcher.Constraint("Tangent", 63, 2, 64, 1),
    Sketcher.Constraint("Tangent", 64, 2, 65, 1),
    Sketcher.Constraint("Tangent", 65, 2, 66, 1),
    Sketcher.Constraint("Tangent", 66, 2, 67, 1),
    Sketcher.Constraint("Tangent", 67, 2, 68, 1),
    Sketcher.Constraint("Tangent", 68, 2, 69, 2),
    Sketcher.Constraint("Tangent", 69, 1, 70, 1),
    Sketcher.Constraint("Tangent", 70, 2, 71, 2),
    Sketcher.Constraint("Tangent", 71, 1, 0, 1),
    Sketcher.Constraint("Horizontal", 0),
    Sketcher.Constraint("Vertical", 18),
    Sketcher.Constraint("Horizontal", 36),
    Sketcher.Constraint("Vertical", 54),
    Sketcher.Constraint("Equal", 5, 7),
    Sketcher.Constraint("Equal", 7, 11),
    Sketcher.Constraint("Equal", 11, 13),
    Sketcher.Constraint("Equal", 3, 15),
    Sketcher.Constraint("Equal", 1, 17),
    Sketcher.Constraint("Equal", 17, 19),
    Sketcher.Constraint("Equal", 15, 21),
    Sketcher.Constraint("Equal", 13, 23),
    Sketcher.Constraint("Equal", 23, 25),
    Sketcher.Constraint("Equal", 9, 27),
    Sketcher.Constraint("Equal", 25, 29),
    Sketcher.Constraint("Equal", 29, 31),
    Sketcher.Constraint("Equal", 21, 33),
    Sketcher.Constraint("Equal", 19, 35),
    Sketcher.Constraint("Equal", 35, 37),
    Sketcher.Constraint("Equal", 33, 39),
    Sketcher.Constraint("Equal", 31, 41),
    Sketcher.Constraint("Equal", 41, 43),
    Sketcher.Constraint("Equal", 27, 45),
    Sketcher.Constraint("Equal", 43, 47),
    Sketcher.Constraint("Equal", 47, 49),
    Sketcher.Constraint("Equal", 39, 51),
    Sketcher.Constraint("Equal", 37, 53),
    Sketcher.Constraint("Equal", 53, 55),
    Sketcher.Constraint("Equal", 51, 57),
    Sketcher.Constraint("Equal", 49, 59),
    Sketcher.Constraint("Equal", 59, 61),
    Sketcher.Constraint("Equal", 45, 63),
    Sketcher.Constraint("Equal", 61, 65),
    Sketcher.Constraint("Equal", 65, 67),
    Sketcher.Constraint("Equal", 57, 69),
    Sketcher.Constraint("Equal", 55, 71),
    Sketcher.Constraint("Symmetric", 1, 3, 37, 3, -1, 1),
    Sketcher.Constraint("Symmetric", 3, 3, 39, 3, -1, 1),
    Sketcher.Constraint("Symmetric", 5, 3, 41, 3, -1, 1),
    Sketcher.Constraint("Symmetric", 7, 3, 43, 3, -1, 1),
    Sketcher.Constraint("Symmetric", 9, 3, 45, 3, -1, 1),
    Sketcher.Constraint("Symmetric", 11, 3, 47, 3, -1, 1),
    Sketcher.Constraint("Symmetric", 13, 3, 49, 3, -1, 1),
    Sketcher.Constraint("Symmetric", 15, 3, 51, 3, -1, 1),
    Sketcher.Constraint("Symmetric", 17, 3, 53, 3, -1, 1),
    Sketcher.Constraint("Symmetric", 21, 3, 57, 3, -1, 1),
    Sketcher.Constraint("Symmetric", 23, 3, 59, 3, -1, 1),
    Sketcher.Constraint("Symmetric", 25, 3, 61, 3, -1, 1),
    Sketcher.Constraint("Symmetric", 27, 3, 63, 3, -1, 1),
    Sketcher.Constraint("Symmetric", 29, 3, 65, 3, -1, 1),
    Sketcher.Constraint("Symmetric", 31, 3, 67, 3, -1, 1),
    Sketcher.Constraint("Symmetric", 33, 3, 69, 3, -1, 1),
    Sketcher.Constraint("Symmetric", 33, 3, 39, 3, -2),
    Sketcher.Constraint("Symmetric", 31, 3, 41, 3, -2),
    Sketcher.Constraint("Symmetric", 29, 3, 43, 3, -2),
    Sketcher.Constraint("Symmetric", 27, 3, 45, 3, -2),
    Sketcher.Constraint("Symmetric", 25, 3, 47, 3, -2),
    Sketcher.Constraint("Symmetric", 23, 3, 49, 3, -2),
    Sketcher.Constraint("Symmetric", 21, 3, 51, 3, -2),
    Sketcher.Constraint("Perpendicular", 4, 6),
    Sketcher.Constraint("Perpendicular", 6, 8),
    Sketcher.Constraint("Perpendicular", 10, 12),
    Sketcher.Constraint("Perpendicular", 12, 14),
    Sketcher.Constraint("Parallel", 2, 16),
    Sketcher.Constraint("Perpendicular", 16, 20),
    Sketcher.Constraint("Perpendicular", 8, 22),
    Sketcher.Constraint("Parallel", 20, 34),
    Sketcher.Constraint("Perpendicular", 52, 56),
    Sketcher.Constraint("Parallel", 56, 70),
    Sketcher.Constraint("Horizontal", 19, 3, 53, 3),
    Sketcher.Constraint("Equal", 36, 18),
    Sketcher.Constraint("Equal", 8, 10),
    Sketcher.Constraint("Equal", 6, 12),
    Sketcher.Constraint("Equal", 4, 14),
    Sketcher.Constraint("Equal", 2, 16),
    Sketcher.Constraint("Radius", 5, Q("0.03 in")),
    Sketcher.Constraint("Radius", 9, Q("0.08 in")),
    Sketcher.Constraint("Angle", 4, Q("-2 deg")),
    Sketcher.Constraint("Radius", 1, Q("0.125 in")),
    Sketcher.Constraint("DistanceX", 9, 3, -1, 1, Q("0.42 in")),
    Sketcher.Constraint("Distance", 6, Q("0.023 in")),
    Sketcher.Constraint("DistanceY", -1, 1, 1, 3, Q("0.3125 in")),
    Sketcher.Constraint("Radius", 3, 0.763339),
    Sketcher.Constraint("DistanceX", 7, 3, -1, 1, Q("0.1575 in")),
    Sketcher.Constraint("Distance", 2, 4.90697),
])
sketch2.setExpression("Constraints[147]", "Params.sketch2_radius")
sketch2.setExpression("Constraints[148]", "Params.sketch2_radius2")
sketch2.setExpression("Constraints[150]", "Params.sketch2_radius3")
sketch2.setExpression("Constraints[152]", "Params.sketch2_length")
pocket1 = body.newObject("PartDesign::Pocket", "Pocket")
pocket1.Profile = sketch2
pocket1.setExpression("Length", "Params.pocket1_length")

doc.recompute()
